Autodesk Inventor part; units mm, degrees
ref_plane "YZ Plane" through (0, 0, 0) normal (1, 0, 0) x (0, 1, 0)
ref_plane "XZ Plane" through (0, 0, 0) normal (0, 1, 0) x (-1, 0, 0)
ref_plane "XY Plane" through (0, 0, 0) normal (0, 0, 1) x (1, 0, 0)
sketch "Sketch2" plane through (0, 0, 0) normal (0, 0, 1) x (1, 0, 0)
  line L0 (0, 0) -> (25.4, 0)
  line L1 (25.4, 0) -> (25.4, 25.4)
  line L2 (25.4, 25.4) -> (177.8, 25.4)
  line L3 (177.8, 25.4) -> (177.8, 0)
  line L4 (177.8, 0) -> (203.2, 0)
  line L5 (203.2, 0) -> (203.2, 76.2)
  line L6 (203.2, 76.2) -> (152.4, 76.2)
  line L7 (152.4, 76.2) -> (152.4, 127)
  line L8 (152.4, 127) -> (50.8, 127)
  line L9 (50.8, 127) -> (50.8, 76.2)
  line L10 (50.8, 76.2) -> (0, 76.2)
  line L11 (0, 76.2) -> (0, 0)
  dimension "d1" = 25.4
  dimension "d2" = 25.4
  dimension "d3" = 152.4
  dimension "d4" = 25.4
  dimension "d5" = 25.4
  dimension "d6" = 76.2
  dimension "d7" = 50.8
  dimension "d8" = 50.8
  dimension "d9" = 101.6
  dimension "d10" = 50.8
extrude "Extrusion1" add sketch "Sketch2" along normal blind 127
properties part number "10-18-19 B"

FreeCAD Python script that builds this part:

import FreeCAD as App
import Part
import Sketcher

V = App.Vector
Q = App.Units.Quantity


def add_polygon(sketch, points):
    """Adds a closed chain of lines whose ends are joined by coincident constraints."""
    first, n = sketch.GeometryCount, len(points)
    for a, b in zip(points, points[1:] + points[:1]):
        sketch.addGeometry(Part.LineSegment(App.Vector(*a, 0), App.Vector(*b, 0)), False)
    for i in range(n):
        sketch.addConstraint(Sketcher.Constraint("Coincident", first + i, 2, first + (i + 1) % n, 1))

doc = App.newDocument("Part")
params = doc.addObject("Spreadsheet::Sheet", "Params")
for row, (alias, value) in enumerate([
    ("sketch1_width", "1 in"),
    ("sketch1_width2", "6 in"),
    ("sketch1_width3", "2 in"),
    ("sketch1_height", "3 in"),
    ("pad1_length", "5 in"),
], start=1):
    params.set(f"A{row}", alias)
    params.set(f"B{row}", "=" + value)
    params.setAlias(f"B{row}", alias)

body = doc.addObject("PartDesign::Body", "Body")

# Sketch on XY plane
sketch1 = doc.addObject("Sketcher::SketchObject", "Sketch")
body.addObject(sketch1)
sketch1.AttachmentSupport = (doc.XY_Plane, [""])
sketch1.MapMode = "FlatFace"
add_polygon(sketch1, [(0, 76), (0, 0), (25, 0), (25, 25), (178, 25), (178, 0), (203, 0), (203, 76), (152, 76), (152, 127), (51, 127), (51, 76)])  # lines 0-11
sketch1.addConstraint([
    Sketcher.Constraint("Vertical", 0),
    Sketcher.Constraint("Horizontal", 1),
    Sketcher.Constraint("Vertical", 2),
    Sketcher.Constraint("Horizontal", 3),
    Sketcher.Constraint("Vertical", 4),
    Sketcher.Constraint("Horizontal", 5),
    Sketcher.Constraint("Vertical", 6),
    Sketcher.Constraint("Horizontal", 7),
    Sketcher.Constraint("Vertical", 8),
    Sketcher.Constraint("Horizontal", 9),
    Sketcher.Constraint("Vertical", 10),
    Sketcher.Constraint("Horizontal", 11),
    Sketcher.Constraint("Coincident", 0, 2, -1, 1),
    Sketcher.Constraint("PointOnObject", 4, 2, -1),
    Sketcher.Constraint("Horizontal", 7, 2, 10, 2),
    Sketcher.Constraint("Equal", 1, 5),
    Sketcher.Constraint("Equal", 7, 11),
    Sketcher.Constraint("Equal", 5, 2),
    Sketcher.Constraint("Equal", 11, 8),
    Sketcher.Constraint("DistanceX", 1, 1, 1, 2, Q("1 in")),
    Sketcher.Constraint("DistanceX", 3, 1, 3, 2, Q("6 in")),
    Sketcher.Constraint("DistanceX", 7, 2, 7, 1, Q("2 in")),
    Sketcher.Constraint("DistanceY", 0, 2, 0, 1, Q("3 in")),
])
sketch1.setExpression("Constraints[31]", "Params.sketch1_width")
sketch1.setExpression("Constraints[32]", "Params.sketch1_width2")
sketch1.setExpression("Constraints[33]", "Params.sketch1_width3")
sketch1.setExpression("Constraints[34]", "Params.sketch1_height")
pad1 = doc.addObject("PartDesign::Pad", "Pad")
body.addObject(pad1)
pad1.Profile = sketch1
pad1.setExpression("Length", "Params.pad1_length")

doc.recompute()
